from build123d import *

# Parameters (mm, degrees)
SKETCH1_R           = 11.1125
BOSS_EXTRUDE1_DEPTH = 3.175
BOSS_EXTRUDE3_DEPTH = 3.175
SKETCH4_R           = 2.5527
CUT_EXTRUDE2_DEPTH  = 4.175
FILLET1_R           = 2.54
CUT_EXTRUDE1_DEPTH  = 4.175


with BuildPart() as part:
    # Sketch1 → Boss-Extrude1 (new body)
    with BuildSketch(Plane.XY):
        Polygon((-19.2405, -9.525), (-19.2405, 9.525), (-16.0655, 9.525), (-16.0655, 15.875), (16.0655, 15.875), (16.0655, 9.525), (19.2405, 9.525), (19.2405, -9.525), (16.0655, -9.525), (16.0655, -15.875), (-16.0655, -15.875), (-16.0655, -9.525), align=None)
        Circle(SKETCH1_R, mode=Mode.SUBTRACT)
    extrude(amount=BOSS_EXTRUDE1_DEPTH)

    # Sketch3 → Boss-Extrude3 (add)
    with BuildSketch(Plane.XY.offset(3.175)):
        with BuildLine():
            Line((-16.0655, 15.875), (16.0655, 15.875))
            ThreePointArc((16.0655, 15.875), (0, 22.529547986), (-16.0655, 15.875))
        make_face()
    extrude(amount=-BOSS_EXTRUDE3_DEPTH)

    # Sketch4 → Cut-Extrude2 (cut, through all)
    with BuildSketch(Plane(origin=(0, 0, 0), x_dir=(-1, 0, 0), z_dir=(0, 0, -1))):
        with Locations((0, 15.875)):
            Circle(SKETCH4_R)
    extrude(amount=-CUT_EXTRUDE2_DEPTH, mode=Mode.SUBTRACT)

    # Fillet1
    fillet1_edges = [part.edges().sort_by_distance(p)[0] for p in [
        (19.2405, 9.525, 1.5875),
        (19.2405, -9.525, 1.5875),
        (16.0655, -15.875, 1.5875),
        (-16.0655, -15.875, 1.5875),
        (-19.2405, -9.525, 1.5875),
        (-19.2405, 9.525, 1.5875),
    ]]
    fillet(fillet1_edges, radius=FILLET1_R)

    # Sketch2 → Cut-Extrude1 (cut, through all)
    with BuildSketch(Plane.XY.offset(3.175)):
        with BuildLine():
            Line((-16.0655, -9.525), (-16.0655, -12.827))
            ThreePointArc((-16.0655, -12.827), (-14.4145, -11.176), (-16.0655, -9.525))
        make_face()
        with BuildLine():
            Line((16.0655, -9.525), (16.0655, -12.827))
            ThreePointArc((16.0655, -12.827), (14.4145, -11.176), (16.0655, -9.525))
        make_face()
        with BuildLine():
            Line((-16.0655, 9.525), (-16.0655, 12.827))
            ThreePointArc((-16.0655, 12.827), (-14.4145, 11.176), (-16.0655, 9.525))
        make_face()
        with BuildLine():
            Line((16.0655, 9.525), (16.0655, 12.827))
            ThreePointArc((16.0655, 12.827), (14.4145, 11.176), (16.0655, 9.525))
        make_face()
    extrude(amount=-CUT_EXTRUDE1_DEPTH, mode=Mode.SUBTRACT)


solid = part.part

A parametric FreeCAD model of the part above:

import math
import FreeCAD as App
import Part
import Sketcher

V = App.Vector
Q = App.Units.Quantity


def edges_at(feature, points):
    """Names of the edges that pass closest to the given points."""
    edges = feature.Shape.Edges
    near = lambda p: min(range(len(edges)), key=lambda i: edges[i].distToShape(Part.Vertex(*p))[0])
    return sorted({f"Edge{near(p) + 1}" for p in points})


def add_polygon(sketch, points):
    """Adds a closed chain of lines whose ends are joined by coincident constraints."""
    first, n = sketch.GeometryCount, len(points)
    for a, b in zip(points, points[1:] + points[:1]):
        sketch.addGeometry(Part.LineSegment(App.Vector(*a, 0), App.Vector(*b, 0)), False)
    for i in range(n):
        sketch.addConstraint(Sketcher.Constraint("Coincident", first + i, 2, first + (i + 1) % n, 1))

doc = App.newDocument("Part")
body = doc.addObject("PartDesign::Body", "Body")

sketch1 = doc.addObject("Sketcher::SketchObject", "Sketch")
body.addObject(sketch1)
sketch1.AttachmentSupport = (doc.XY_Plane, [""])
sketch1.MapMode = "FlatFace"
add_polygon(sketch1, [(-19.2, 9.5), (-19.2, -9.5), (-16.1, -9.5), (-16.1, -15.9), (16.1, -15.9), (16.1, -9.5), (19.2, -9.5), (19.2, 9.5), (16.1, 9.5), (16.1, 15.9), (-16.1, 15.9), (-16.1, 9.5)])
sketch1.addGeometry(Part.Circle(V(0, 0, 0), V(0, 0, 1), 11.1), False)
sketch1.addConstraint([
    Sketcher.Constraint("Vertical", 0),
    Sketcher.Constraint("Horizontal", 1),
    Sketcher.Constraint("Vertical", 2),
    Sketcher.Constraint("Horizontal", 3),
    Sketcher.Constraint("Vertical", 4),
    Sketcher.Constraint("Horizontal", 5),
    Sketcher.Constraint("Vertical", 6),
    Sketcher.Constraint("Horizontal", 7),
    Sketcher.Constraint("Vertical", 8),
    Sketcher.Constraint("Horizontal", 9),
    Sketcher.Constraint("Vertical", 10),
    Sketcher.Constraint("Horizontal", 11),
    Sketcher.Constraint("Coincident", 12, 3, -1, 1),
    Sketcher.Constraint("Symmetric", 0, 2, 6, 2, -1, 1),
    Sketcher.Constraint("Symmetric", 2, 2, 8, 2, -1, 1),
    Sketcher.Constraint("Symmetric", 4, 2, 10, 2, -1, 1),
    Sketcher.Constraint("Symmetric", 1, 2, 4, 2, -2),
    Sketcher.Constraint("Diameter", 12, Q("0.875 in")),
    Sketcher.Constraint("DistanceY", 3, 2, 6, 2, Q("1 in")),
    Sketcher.Constraint("DistanceY", 0, 2, 0, 1, Q("0.75 in")),
    Sketcher.Constraint("DistanceX", 1, 1, 1, 2, Q("0.125 in")),
    Sketcher.Constraint("DistanceX", 3, 1, 3, 2, Q("1.265 in")),
])
pad1 = doc.addObject("PartDesign::Pad", "Pad")
body.addObject(pad1)
pad1.Profile = sketch1
pad1.Length = Q("0.125 in")

sketch2 = doc.addObject("Sketcher::SketchObject", "Sketch001")
body.addObject(sketch2)
sketch2.AttachmentSupport = (doc.XY_Plane, [""])
sketch2.MapMode = "FlatFace"
sketch2.AttachmentOffset = App.Placement(V(0, 0, 0.125 * 25.4), App.Rotation())
sketch2.addGeometry([
    Part.LineSegment(V(-16, 16, 0), V(16, 16, 0)),
    Part.ArcOfCircle(Part.Circle(V(0, 0, 0), V(0, 0, 1), 23), math.radians(45), math.radians(135)),
], False)
sketch2.addConstraint([
    Sketcher.Constraint("Coincident", 0, 1, 1, 2),
    Sketcher.Constraint("Coincident", 1, 1, 0, 2),
    Sketcher.Constraint("Horizontal", 0),
    Sketcher.Constraint("PointOnObject", 1, 3, -2),
    Sketcher.Constraint("DistanceX", 0, 1, 0, 2, Q("1.265 in")),
    Sketcher.Constraint("DistanceY", -1, 1, 0, 1, Q("0.625 in")),
    Sketcher.Constraint("DistanceY", 1, 3, -1, 1, Q("0.0075 in")),
])
pad2 = doc.addObject("PartDesign::Pad", "Pad001")
body.addObject(pad2)
pad2.Profile = sketch2
pad2.Length = Q("0.125 in")
pad2.Reversed = True

sketch3 = doc.addObject("Sketcher::SketchObject", "Sketch002")
body.addObject(sketch3)
sketch3.AttachmentSupport = (doc.XY_Plane, [""])
sketch3.MapMode = "FlatFace"
sketch3.addGeometry(Part.Circle(V(0, 15.9, 0), V(0, 0, 1), 2.6), False)
sketch3.addConstraint([
    Sketcher.Constraint("PointOnObject", 0, 3, -2),
    Sketcher.Constraint("Diameter", 0, Q("0.201 in")),
    Sketcher.Constraint("DistanceY", -1, 1, 0, 3, Q("0.625 in")),
])
pocket1 = doc.addObject("PartDesign::Pocket", "Pocket")
body.addObject(pocket1)
pocket1.Profile = sketch3
pocket1.Type = "ThroughAll"
pocket1.Reversed = True
doc.recompute()

fillet = doc.addObject("PartDesign::Fillet", "Fillet")
body.addObject(fillet)
fillet.Base = (pocket1, edges_at(pocket1, [
    (19.241, 9.525, 1.587),
    (19.241, -9.525, 1.587),
    (16.066, -15.875, 1.587),
    (-16.066, -15.875, 1.587),
    (-19.241, -9.525, 1.587),
    (-19.241, 9.525, 1.587),
]))
fillet.Radius = Q("0.1 in")

sketch4 = doc.addObject("Sketcher::SketchObject", "Sketch003")
body.addObject(sketch4)
sketch4.AttachmentSupport = (doc.XY_Plane, [""])
sketch4.MapMode = "FlatFace"
sketch4.AttachmentOffset = App.Placement(V(0, 0, 0.125 * 25.4), App.Rotation())
sketch4.addGeometry([
    Part.LineSegment(V(-16.1, -9.5, 0), V(-16.1, -12.8, 0)),
    Part.ArcOfCircle(Part.Circle(V(-16.1, -11.2, 0), V(0, 0, 1), 1.7), math.radians(-90), math.radians(90)),
    Part.LineSegment(V(16.1, -12.8, 0), V(16.1, -9.5, 0)),
    Part.ArcOfCircle(Part.Circle(V(16.1, -11.2, 0), V(0, 0, 1), 1.7), math.radians(90), math.radians(270)),
    Part.LineSegment(V(-16.1, 12.8, 0), V(-16.1, 9.5, 0)),
    Part.ArcOfCircle(Part.Circle(V(-16.1, 11.2, 0), V(0, 0, 1), 1.7), math.radians(-90), math.radians(90)),
    Part.LineSegment(V(16.1, 9.5, 0), V(16.1, 12.8, 0)),
    Part.ArcOfCircle(Part.Circle(V(16.1, 11.2, 0), V(0, 0, 1), 1.7), math.radians(90), math.radians(270)),
], False)
sketch4.addConstraint([
    Sketcher.Constraint("Coincident", 0, 1, 1, 2),
    Sketcher.Constraint("Coincident", 1, 1, 0, 2),
    Sketcher.Constraint("Coincident", 2, 1, 3, 2),
    Sketcher.Constraint("Coincident", 3, 1, 2, 2),
    Sketcher.Constraint("Coincident", 4, 1, 5, 2),
    Sketcher.Constraint("Coincident", 5, 1, 4, 2),
    Sketcher.Constraint("Coincident", 6, 1, 7, 2),
    Sketcher.Constraint("Coincident", 7, 1, 6, 2),
    Sketcher.Constraint("Vertical", 0),
    Sketcher.Constraint("Vertical", 2),
    Sketcher.Constraint("Vertical", 4),
    Sketcher.Constraint("Vertical", 6),
    Sketcher.Constraint("Equal", 1, 3),
    Sketcher.Constraint("Equal", 3, 5),
    Sketcher.Constraint("Equal", 5, 7),
    Sketcher.Constraint("Symmetric", 3, 3, 5, 3, -1, 1),
    Sketcher.Constraint("Symmetric", 1, 3, 7, 3, -1, 1),
    Sketcher.Constraint("Symmetric", 1, 3, 3, 3, -2),
    Sketcher.Constraint("Vertical", 5, 3, 0, 1),
    Sketcher.Constraint("Vertical", 7, 3, 2, 1),
    Sketcher.Constraint("Vertical", 1, 1, 4, 1),
    Sketcher.Constraint("Vertical", 3, 1, 6, 1),
    Sketcher.Constraint("Radius", 1, Q("0.065 in")),
    Sketcher.Constraint("DistanceY", 1, 3, -1, 1, Q("0.44 in")),
    Sketcher.Constraint("DistanceX", 1, 3, 3, 3, Q("1.265 in")),
])
pocket2 = doc.addObject("PartDesign::Pocket", "Pocket001")
body.addObject(pocket2)
pocket2.Profile = sketch4
pocket2.Type = "ThroughAll"

doc.recompute()
